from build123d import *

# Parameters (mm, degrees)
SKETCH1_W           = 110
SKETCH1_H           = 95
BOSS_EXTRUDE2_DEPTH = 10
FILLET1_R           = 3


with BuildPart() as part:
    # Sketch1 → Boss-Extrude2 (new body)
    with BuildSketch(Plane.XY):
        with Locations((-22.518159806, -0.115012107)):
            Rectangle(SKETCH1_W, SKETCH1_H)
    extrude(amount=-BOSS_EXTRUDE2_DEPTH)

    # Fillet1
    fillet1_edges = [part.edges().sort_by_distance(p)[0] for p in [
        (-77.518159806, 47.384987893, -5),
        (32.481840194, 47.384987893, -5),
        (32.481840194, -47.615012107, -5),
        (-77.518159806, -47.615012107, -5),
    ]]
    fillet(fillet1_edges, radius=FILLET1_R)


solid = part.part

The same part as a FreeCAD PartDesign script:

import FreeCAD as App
import Part
import Sketcher

V = App.Vector
Q = App.Units.Quantity


def edges_at(feature, points):
    """Names of the edges that pass closest to the given points."""
    edges = feature.Shape.Edges
    near = lambda p: min(range(len(edges)), key=lambda i: edges[i].distToShape(Part.Vertex(*p))[0])
    return sorted({f"Edge{near(p) + 1}" for p in points})

doc = App.newDocument("Part")
body = doc.addObject("PartDesign::Body", "Body")

sketch1 = doc.addObject("Sketcher::SketchObject", "Sketch")
body.addObject(sketch1)
sketch1.AttachmentSupport = (doc.XY_Plane, [""])
sketch1.MapMode = "FlatFace"
sketch1.addGeometry([
    Part.LineSegment(V(-78, 47, 0), V(-78, -48, 0)),
    Part.LineSegment(V(-78, -48, 0), V(32, -48, 0)),
    Part.LineSegment(V(32, -48, 0), V(32, 47, 0)),
    Part.LineSegment(V(32, 47, 0), V(-78, 47, 0)),
], False)
sketch1.addConstraint([
    Sketcher.Constraint("Coincident", 0, 2, 1, 1),
    Sketcher.Constraint("Coincident", 1, 2, 2, 1),
    Sketcher.Constraint("Coincident", 2, 2, 3, 1),
    Sketcher.Constraint("Coincident", 3, 2, 0, 1),
    Sketcher.Constraint("Vertical", 0),
    Sketcher.Constraint("Horizontal", 1),
    Sketcher.Constraint("Vertical", 2),
    Sketcher.Constraint("Horizontal", 3),
    Sketcher.Constraint("DistanceX", 1, 1, 1, 2, Q("110 mm")),
    Sketcher.Constraint("DistanceY", 0, 2, 0, 1, Q("95 mm")),
    Sketcher.Constraint("DistanceX", 0, 2, -1, 1, Q("77.51816 mm")),
    Sketcher.Constraint("DistanceY", 0, 2, -1, 1, Q("47.615012 mm")),
])
pad1 = doc.addObject("PartDesign::Pad", "Pad")
body.addObject(pad1)
pad1.Profile = sketch1
pad1.Length = 10
pad1.Reversed = True
doc.recompute()

fillet = doc.addObject("PartDesign::Fillet", "Fillet")
body.addObject(fillet)
fillet.Base = (pad1, edges_at(pad1, [
    (-77.518, 47.385, -5),
    (32.482, 47.385, -5),
    (32.482, -47.615, -5),
    (-77.518, -47.615, -5),
]))
fillet.Radius = 3

doc.recompute()
